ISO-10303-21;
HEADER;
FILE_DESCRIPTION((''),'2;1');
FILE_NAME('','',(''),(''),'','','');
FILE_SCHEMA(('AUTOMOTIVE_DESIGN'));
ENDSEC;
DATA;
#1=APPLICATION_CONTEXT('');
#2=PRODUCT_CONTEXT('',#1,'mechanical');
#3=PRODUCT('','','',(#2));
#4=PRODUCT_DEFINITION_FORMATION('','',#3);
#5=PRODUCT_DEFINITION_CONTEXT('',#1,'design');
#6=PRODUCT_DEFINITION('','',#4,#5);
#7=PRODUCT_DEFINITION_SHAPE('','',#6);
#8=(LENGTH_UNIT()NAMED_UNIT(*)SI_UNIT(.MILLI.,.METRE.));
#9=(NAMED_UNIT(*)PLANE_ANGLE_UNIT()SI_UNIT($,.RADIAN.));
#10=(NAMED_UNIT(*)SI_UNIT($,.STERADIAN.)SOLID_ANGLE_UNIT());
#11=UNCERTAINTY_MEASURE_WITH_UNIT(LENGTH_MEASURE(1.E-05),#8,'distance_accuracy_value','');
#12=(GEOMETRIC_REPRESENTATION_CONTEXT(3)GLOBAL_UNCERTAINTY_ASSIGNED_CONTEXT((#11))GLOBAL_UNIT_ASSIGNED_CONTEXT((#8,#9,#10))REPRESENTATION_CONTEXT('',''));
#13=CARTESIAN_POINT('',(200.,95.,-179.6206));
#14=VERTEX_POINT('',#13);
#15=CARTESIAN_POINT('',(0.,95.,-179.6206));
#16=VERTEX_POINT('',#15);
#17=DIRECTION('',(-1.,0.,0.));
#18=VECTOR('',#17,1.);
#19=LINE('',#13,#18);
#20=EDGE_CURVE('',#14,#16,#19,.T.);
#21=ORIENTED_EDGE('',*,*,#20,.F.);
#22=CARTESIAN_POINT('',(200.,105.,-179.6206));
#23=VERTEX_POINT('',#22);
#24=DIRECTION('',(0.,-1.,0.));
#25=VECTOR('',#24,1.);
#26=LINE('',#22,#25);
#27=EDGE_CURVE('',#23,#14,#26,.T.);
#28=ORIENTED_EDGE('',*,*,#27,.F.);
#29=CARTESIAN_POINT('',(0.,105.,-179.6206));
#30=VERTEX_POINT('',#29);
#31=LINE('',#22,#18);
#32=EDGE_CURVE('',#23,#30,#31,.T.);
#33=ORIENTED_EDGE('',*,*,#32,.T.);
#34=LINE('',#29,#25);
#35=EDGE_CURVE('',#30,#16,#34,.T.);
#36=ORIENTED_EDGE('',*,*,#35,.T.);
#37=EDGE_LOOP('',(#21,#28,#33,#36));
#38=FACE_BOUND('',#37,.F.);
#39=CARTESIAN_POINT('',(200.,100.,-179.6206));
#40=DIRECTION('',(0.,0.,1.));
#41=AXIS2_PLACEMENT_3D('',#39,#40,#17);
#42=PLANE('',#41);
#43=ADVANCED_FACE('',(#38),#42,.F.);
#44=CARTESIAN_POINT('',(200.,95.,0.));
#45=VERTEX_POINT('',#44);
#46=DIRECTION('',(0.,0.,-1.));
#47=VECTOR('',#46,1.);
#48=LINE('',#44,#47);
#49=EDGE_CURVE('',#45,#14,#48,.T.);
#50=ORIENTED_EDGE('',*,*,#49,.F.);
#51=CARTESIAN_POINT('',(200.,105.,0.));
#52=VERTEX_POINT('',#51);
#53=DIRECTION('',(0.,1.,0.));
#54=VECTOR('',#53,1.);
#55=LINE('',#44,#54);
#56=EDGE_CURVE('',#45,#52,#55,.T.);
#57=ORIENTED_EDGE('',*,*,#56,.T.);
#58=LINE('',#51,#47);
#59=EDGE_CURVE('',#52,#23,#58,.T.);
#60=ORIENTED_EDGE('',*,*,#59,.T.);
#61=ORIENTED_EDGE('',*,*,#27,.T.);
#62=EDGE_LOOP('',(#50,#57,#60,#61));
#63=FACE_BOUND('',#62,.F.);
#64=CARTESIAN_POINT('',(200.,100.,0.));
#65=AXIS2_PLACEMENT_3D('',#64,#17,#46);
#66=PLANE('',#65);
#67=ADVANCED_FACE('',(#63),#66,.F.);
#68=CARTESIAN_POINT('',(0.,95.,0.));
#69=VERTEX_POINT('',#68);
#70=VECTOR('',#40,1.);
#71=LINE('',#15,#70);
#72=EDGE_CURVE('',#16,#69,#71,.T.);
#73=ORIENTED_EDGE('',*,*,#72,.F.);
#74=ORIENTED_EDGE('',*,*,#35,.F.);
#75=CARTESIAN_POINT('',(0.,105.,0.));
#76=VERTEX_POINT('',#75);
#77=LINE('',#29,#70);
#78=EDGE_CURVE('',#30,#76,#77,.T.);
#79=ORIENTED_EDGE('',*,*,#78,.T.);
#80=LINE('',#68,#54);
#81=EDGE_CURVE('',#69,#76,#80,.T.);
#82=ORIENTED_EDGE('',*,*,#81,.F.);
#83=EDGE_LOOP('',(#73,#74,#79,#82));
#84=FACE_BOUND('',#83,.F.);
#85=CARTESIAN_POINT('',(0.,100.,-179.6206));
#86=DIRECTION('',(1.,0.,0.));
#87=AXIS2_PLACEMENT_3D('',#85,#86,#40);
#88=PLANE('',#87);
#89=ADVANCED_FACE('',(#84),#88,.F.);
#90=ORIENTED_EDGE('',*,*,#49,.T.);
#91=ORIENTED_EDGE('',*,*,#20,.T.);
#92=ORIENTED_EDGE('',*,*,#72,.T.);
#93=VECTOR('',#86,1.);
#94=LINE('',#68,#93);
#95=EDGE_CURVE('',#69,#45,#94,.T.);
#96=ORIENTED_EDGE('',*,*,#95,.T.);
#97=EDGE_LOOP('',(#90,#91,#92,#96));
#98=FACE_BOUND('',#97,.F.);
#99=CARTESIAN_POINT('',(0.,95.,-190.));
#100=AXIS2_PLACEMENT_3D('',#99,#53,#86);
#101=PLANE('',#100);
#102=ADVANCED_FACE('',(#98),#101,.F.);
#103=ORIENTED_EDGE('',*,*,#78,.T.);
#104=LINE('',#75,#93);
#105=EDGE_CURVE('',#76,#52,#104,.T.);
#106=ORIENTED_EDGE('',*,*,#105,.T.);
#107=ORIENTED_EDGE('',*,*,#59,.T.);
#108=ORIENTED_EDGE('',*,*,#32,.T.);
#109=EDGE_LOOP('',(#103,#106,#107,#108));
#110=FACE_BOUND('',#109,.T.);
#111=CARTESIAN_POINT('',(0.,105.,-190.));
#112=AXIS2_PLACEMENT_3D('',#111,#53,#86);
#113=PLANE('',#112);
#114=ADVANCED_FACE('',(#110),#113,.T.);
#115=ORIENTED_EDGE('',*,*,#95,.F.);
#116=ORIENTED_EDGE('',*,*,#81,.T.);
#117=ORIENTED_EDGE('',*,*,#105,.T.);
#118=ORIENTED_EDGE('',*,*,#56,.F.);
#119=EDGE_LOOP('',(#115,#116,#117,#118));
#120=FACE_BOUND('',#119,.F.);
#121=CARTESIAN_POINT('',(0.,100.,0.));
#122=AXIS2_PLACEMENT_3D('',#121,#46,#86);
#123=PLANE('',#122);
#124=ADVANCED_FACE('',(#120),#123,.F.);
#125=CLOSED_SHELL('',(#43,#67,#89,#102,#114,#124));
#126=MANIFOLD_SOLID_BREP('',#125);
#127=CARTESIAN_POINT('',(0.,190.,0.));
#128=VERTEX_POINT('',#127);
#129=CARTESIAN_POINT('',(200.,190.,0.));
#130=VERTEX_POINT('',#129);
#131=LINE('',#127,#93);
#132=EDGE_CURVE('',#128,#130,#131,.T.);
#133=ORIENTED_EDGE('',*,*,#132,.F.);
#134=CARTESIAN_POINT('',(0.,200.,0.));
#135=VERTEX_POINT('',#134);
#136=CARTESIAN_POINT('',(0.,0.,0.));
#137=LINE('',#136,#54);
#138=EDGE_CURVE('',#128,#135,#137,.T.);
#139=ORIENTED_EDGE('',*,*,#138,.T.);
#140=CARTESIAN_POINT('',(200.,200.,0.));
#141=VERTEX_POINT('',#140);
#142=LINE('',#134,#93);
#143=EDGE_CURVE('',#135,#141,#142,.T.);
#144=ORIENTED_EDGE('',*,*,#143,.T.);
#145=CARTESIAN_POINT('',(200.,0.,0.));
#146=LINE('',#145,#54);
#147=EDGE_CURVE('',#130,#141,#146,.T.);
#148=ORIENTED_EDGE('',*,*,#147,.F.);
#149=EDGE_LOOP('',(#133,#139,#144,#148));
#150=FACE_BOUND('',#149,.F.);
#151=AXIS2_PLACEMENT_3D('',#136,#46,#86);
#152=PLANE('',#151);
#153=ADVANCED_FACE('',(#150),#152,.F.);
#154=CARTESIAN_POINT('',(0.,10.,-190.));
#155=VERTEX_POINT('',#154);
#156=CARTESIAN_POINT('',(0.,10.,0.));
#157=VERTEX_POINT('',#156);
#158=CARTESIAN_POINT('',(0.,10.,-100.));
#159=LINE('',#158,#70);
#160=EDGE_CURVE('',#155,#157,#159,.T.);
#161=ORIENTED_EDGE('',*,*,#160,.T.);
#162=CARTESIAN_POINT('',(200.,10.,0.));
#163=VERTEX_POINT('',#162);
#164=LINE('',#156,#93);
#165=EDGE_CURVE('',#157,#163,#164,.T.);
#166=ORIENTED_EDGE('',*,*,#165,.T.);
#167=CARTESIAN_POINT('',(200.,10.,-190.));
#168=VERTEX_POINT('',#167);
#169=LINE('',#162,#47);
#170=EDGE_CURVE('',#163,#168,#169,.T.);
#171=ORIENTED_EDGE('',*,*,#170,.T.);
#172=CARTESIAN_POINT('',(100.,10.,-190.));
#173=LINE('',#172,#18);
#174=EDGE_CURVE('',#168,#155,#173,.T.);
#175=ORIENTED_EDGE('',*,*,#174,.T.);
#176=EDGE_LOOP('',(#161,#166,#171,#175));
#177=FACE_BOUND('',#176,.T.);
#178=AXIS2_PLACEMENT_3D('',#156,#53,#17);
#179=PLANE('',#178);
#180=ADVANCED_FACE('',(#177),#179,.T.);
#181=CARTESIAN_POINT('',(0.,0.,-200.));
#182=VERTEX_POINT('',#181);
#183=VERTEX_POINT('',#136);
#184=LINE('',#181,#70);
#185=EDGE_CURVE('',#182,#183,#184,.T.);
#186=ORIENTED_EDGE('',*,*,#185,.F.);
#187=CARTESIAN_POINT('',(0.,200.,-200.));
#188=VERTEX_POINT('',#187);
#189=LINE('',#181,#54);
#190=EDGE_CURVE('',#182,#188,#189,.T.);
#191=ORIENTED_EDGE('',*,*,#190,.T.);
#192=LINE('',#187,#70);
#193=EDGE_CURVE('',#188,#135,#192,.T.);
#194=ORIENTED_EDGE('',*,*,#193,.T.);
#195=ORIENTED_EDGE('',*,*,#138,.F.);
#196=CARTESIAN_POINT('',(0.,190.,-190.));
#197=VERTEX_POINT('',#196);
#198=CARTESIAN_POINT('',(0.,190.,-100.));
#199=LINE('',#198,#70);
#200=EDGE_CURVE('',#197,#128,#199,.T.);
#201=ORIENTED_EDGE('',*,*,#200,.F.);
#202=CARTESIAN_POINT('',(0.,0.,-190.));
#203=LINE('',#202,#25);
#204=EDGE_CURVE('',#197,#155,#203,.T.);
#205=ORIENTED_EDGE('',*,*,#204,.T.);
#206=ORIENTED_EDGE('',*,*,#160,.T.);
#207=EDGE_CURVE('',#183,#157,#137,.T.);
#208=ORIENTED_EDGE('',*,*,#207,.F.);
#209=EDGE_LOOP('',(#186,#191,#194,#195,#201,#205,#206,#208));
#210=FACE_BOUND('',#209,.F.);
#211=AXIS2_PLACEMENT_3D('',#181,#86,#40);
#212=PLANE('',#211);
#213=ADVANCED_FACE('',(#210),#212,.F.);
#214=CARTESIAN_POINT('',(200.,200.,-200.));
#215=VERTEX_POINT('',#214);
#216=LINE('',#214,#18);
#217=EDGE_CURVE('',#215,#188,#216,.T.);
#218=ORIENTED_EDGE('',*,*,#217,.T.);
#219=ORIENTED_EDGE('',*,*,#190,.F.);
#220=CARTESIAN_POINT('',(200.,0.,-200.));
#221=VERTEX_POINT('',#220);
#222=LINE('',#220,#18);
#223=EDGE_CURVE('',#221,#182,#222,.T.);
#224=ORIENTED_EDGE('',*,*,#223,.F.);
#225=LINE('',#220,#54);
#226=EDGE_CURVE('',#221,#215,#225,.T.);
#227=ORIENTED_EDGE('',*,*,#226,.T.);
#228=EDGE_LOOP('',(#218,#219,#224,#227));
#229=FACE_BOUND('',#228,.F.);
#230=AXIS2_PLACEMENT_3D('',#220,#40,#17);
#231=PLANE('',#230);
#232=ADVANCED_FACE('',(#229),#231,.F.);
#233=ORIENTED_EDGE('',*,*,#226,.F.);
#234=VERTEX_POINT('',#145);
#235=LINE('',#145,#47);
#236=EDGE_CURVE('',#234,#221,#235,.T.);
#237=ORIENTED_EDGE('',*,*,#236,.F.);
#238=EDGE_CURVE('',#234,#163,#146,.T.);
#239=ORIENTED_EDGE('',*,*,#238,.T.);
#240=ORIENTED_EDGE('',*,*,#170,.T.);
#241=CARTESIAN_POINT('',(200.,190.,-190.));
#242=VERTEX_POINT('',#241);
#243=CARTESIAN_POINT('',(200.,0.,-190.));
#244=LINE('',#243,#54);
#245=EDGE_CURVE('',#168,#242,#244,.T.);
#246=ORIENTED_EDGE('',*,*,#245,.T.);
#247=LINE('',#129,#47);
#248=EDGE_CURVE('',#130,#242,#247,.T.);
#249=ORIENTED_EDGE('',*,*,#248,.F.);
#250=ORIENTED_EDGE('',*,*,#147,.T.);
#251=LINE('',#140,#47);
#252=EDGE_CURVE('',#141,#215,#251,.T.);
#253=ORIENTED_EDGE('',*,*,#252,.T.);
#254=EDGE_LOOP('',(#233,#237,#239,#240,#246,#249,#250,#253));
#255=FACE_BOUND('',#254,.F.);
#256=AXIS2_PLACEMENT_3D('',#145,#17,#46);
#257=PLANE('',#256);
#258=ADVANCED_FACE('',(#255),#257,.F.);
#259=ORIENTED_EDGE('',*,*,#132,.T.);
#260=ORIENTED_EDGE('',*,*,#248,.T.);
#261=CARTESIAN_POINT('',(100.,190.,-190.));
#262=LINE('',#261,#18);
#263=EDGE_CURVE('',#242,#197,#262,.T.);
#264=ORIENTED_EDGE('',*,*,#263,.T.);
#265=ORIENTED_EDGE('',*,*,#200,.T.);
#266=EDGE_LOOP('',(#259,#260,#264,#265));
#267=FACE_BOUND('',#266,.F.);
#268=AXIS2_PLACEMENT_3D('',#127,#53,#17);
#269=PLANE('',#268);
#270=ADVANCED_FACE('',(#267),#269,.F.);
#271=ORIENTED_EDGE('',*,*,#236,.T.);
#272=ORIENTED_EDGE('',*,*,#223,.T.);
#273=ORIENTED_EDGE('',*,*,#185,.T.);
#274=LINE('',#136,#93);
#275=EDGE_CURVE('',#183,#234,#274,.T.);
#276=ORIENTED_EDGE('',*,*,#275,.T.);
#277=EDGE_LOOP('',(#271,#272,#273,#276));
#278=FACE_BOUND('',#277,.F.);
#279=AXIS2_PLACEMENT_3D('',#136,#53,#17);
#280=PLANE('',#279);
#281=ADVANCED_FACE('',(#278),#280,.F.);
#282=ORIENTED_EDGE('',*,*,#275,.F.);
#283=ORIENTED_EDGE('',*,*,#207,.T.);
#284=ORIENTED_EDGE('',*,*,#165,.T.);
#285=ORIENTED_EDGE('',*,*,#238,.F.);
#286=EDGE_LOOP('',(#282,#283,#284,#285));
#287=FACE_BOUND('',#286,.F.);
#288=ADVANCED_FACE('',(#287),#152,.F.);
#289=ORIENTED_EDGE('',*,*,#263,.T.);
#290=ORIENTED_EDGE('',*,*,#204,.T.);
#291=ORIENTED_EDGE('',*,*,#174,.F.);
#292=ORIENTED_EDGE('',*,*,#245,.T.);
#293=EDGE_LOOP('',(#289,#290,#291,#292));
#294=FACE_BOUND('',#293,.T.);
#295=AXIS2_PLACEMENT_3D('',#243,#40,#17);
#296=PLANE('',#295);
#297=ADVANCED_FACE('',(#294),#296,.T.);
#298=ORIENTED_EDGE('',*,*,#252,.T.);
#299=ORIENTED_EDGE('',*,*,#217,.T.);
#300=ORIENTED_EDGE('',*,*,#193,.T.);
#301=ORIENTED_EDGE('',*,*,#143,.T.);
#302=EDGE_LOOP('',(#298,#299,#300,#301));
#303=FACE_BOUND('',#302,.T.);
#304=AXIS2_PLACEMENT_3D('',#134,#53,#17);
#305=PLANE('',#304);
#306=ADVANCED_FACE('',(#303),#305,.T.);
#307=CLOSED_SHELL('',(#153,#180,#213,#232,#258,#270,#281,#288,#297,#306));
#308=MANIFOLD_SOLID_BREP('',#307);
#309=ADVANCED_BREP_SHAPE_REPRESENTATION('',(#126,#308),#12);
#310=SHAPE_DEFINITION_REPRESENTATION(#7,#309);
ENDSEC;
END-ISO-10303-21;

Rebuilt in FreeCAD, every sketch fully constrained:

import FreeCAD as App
import Part
import Sketcher
Q = App.Units.Quantity


def faces_at(feature, points):
    """Names of the faces that lie closest to the given points."""
    faces = feature.Shape.Faces
    near = lambda p: min(range(len(faces)), key=lambda i: faces[i].distToShape(Part.Vertex(*p))[0])
    return sorted({f"Face{near(p) + 1}" for p in points})

doc = App.newDocument("Part")
params = doc.addObject("Spreadsheet::Sheet", "Params")
for row, (alias, value) in enumerate([
    ("sketch1_width", "200 mm"),
    ("pad1_length", "200 mm"),
    ("thickness_wall", "10 mm"),
    ("sketch2_width", "200 mm"),
    ("pad2_length", "10 mm"),
], start=1):
    params.set(f"A{row}", alias)
    params.set(f"B{row}", "=" + value)
    params.setAlias(f"B{row}", alias)

body = doc.addObject("PartDesign::Body", "Body")
body.AllowCompound = True

sketch1 = body.newObject("Sketcher::SketchObject", "Sketch")
sketch1.AttachmentSupport = (doc.getObject("XZ_Plane"), [""])
sketch1.MapMode = "FlatFace"
sketch1.addGeometry(Part.LineSegment(App.Vector(0, -200, 0), App.Vector(0, 0, 0)), False)
sketch1.addGeometry(Part.LineSegment(App.Vector(0, 0, 0), App.Vector(200, 0, 0)), False)
sketch1.addGeometry(Part.LineSegment(App.Vector(200, 0, 0), App.Vector(200, -200, 0)), False)
sketch1.addGeometry(Part.LineSegment(App.Vector(200, -200, 0), App.Vector(0, -200, 0)), False)
sketch1.addConstraint(Sketcher.Constraint("Coincident", 0, 2, 1, 1))
sketch1.addConstraint(Sketcher.Constraint("Coincident", 1, 2, 2, 1))
sketch1.addConstraint(Sketcher.Constraint("Coincident", 2, 2, 3, 1))
sketch1.addConstraint(Sketcher.Constraint("Coincident", 3, 2, 0, 1))
sketch1.addConstraint(Sketcher.Constraint("Vertical", 0))
sketch1.addConstraint(Sketcher.Constraint("Horizontal", 1))
sketch1.addConstraint(Sketcher.Constraint("Vertical", 2))
sketch1.addConstraint(Sketcher.Constraint("Horizontal", 3))
sketch1.addConstraint(Sketcher.Constraint("Coincident", 0, 2, -1, 1))
sketch1.addConstraint(Sketcher.Constraint("Equal", 3, 0))
sketch1.addConstraint(Sketcher.Constraint("DistanceX", 1, 1, 1, 2, Q("200 mm")))
sketch1.setExpression("Constraints[10]", "Params.sketch1_width")
pad1 = body.newObject("PartDesign::Pad", "Pad")
pad1.Profile = sketch1
pad1.setExpression("Length", "Params.pad1_length")
pad1.Reversed = True
doc.recompute()

thickness = body.newObject("PartDesign::Thickness", "Thickness")
thickness.Base = (pad1, faces_at(pad1, [(66.667, 66.667, 0), (0, 66.667, -133.333), (200, 66.667, -66.667)]))
thickness.setExpression("Value", "Params.thickness_wall")
thickness.Reversed = True
thickness.Join = "Intersection"

sketch2 = body.newObject("Sketcher::SketchObject", "Sketch001")
sketch2.AttachmentSupport = (doc.getObject("XZ_Plane"), [""])
sketch2.MapMode = "FlatFace"
sketch2.AttachmentOffset = App.Placement(App.Vector(0, 0, -100), App.Rotation())
sketch2.addGeometry(Part.LineSegment(App.Vector(0, -180, 0), App.Vector(0, 0, 0)), False)
sketch2.addGeometry(Part.LineSegment(App.Vector(0, 0, 0), App.Vector(200, 0, 0)), False)
sketch2.addGeometry(Part.LineSegment(App.Vector(200, 0, 0), App.Vector(200, -180, 0)), False)
sketch2.addGeometry(Part.LineSegment(App.Vector(200, -180, 0), App.Vector(0, -180, 0)), False)
sketch2.addConstraint(Sketcher.Constraint("Coincident", 0, 2, 1, 1))
sketch2.addConstraint(Sketcher.Constraint("Coincident", 1, 2, 2, 1))
sketch2.addConstraint(Sketcher.Constraint("Coincident", 2, 2, 3, 1))
sketch2.addConstraint(Sketcher.Constraint("Coincident", 3, 2, 0, 1))
sketch2.addConstraint(Sketcher.Constraint("Vertical", 0))
sketch2.addConstraint(Sketcher.Constraint("Horizontal", 1))
sketch2.addConstraint(Sketcher.Constraint("Vertical", 2))
sketch2.addConstraint(Sketcher.Constraint("Horizontal", 3))
sketch2.addConstraint(Sketcher.Constraint("Coincident", 0, 2, -1, 1))
sketch2.addConstraint(Sketcher.Constraint("DistanceX", 1, 1, 1, 2, Q("200 mm")))
sketch2.addConstraint(Sketcher.Constraint("DistanceY", 0, 1, 0, 2, Q("179.6206 mm")))
sketch2.setExpression("Constraints[9]", "Params.sketch2_width")
pad2 = body.newObject("PartDesign::Pad", "Pad001")
pad2.Profile = sketch2
pad2.setExpression("Length", "Params.pad2_length")
pad2.Midplane = True

doc.recompute()
